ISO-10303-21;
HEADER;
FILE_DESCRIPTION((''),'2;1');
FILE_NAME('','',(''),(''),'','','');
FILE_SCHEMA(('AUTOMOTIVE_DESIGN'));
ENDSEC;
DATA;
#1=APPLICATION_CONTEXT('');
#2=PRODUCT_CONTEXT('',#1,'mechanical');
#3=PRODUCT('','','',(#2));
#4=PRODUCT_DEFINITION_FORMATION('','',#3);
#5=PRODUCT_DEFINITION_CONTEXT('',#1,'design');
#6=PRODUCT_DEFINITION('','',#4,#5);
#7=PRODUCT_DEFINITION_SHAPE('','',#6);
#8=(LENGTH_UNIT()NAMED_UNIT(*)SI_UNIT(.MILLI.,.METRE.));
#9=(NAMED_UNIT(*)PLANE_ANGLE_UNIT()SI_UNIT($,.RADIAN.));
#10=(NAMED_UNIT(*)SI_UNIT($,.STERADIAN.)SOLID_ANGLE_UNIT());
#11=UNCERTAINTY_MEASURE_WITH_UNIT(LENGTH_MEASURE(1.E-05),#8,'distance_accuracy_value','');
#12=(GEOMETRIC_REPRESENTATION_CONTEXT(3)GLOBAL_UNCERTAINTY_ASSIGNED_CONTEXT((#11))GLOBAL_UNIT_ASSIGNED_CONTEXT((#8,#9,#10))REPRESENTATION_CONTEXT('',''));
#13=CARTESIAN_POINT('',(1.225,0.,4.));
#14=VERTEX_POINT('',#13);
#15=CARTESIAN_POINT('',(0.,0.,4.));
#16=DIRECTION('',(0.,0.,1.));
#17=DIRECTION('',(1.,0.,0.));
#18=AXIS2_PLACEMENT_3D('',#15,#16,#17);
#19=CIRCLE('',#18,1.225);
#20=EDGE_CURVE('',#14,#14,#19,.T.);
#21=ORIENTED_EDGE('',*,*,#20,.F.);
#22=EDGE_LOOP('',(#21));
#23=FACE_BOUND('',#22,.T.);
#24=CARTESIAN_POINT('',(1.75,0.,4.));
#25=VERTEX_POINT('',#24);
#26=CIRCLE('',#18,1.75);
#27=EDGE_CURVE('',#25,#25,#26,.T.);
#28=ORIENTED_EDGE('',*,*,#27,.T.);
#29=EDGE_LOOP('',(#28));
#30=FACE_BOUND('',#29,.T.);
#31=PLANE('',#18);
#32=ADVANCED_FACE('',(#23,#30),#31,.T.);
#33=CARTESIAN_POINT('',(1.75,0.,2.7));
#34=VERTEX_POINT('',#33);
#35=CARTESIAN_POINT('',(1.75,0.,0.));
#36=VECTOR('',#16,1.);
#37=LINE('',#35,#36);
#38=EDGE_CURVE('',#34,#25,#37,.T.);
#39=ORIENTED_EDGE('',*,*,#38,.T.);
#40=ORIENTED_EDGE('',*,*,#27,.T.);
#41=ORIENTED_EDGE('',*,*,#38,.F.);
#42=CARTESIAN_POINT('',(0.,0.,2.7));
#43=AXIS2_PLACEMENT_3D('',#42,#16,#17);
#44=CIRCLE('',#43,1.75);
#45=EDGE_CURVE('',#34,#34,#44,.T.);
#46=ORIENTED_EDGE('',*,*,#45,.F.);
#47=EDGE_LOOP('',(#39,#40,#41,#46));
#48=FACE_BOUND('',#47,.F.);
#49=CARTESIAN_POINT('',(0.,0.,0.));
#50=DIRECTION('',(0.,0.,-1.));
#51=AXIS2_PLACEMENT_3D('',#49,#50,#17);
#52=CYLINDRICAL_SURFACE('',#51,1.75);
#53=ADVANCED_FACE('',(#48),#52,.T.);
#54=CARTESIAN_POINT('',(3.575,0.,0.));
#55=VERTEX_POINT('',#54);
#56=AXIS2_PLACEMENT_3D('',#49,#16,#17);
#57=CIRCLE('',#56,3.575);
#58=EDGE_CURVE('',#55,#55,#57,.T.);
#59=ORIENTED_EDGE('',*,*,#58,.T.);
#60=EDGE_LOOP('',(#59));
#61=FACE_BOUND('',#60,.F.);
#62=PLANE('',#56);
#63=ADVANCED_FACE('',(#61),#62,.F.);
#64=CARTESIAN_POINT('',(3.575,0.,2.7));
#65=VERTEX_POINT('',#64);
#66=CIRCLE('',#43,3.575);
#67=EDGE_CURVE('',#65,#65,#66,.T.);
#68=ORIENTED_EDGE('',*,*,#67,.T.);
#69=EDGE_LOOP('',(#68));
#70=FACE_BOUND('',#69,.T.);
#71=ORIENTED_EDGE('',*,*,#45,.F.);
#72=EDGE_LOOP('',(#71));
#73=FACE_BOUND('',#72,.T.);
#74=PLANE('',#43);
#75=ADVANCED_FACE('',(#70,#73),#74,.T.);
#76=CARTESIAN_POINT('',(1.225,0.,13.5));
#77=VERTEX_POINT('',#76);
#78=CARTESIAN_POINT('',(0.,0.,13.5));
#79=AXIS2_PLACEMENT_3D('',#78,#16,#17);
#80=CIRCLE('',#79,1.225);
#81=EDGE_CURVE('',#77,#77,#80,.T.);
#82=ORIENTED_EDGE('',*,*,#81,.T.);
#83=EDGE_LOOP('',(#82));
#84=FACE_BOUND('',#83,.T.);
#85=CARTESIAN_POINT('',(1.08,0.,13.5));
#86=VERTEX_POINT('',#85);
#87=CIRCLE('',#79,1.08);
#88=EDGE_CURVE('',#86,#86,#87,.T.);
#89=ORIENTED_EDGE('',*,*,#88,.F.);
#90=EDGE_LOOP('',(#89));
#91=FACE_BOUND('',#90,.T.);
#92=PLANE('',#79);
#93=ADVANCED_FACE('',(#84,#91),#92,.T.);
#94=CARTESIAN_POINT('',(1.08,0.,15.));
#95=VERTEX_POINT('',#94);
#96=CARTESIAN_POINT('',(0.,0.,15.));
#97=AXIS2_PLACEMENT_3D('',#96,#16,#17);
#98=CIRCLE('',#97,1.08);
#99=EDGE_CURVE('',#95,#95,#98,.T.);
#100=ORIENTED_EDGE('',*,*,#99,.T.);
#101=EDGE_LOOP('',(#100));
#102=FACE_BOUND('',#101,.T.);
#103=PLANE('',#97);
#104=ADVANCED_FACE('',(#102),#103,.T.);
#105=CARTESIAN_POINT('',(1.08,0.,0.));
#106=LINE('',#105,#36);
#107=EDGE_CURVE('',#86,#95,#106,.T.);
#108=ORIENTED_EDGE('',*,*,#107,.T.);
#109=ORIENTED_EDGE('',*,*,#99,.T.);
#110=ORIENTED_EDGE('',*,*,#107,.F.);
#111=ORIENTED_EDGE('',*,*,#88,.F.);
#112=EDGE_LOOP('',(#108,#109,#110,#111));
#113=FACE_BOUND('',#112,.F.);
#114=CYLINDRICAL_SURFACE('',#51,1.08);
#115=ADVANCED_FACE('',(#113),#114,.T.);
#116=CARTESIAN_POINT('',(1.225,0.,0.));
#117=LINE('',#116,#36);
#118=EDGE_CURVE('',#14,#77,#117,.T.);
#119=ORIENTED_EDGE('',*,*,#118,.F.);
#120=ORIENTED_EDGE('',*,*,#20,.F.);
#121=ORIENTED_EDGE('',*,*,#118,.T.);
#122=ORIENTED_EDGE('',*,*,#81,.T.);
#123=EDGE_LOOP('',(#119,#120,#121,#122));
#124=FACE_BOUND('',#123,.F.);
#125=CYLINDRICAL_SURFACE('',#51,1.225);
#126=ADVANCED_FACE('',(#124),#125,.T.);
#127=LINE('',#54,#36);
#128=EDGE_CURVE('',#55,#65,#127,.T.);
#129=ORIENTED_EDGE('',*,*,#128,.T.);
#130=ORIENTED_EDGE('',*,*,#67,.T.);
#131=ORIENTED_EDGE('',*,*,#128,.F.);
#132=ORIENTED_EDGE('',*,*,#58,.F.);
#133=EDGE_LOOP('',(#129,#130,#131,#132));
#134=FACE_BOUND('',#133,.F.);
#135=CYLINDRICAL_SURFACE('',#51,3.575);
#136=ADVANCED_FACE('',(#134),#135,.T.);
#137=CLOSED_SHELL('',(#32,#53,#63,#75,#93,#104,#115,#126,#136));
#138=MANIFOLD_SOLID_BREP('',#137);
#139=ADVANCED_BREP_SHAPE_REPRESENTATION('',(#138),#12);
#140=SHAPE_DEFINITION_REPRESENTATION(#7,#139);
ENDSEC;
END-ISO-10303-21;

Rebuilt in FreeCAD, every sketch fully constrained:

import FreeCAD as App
import Part
import Sketcher

V = App.Vector
Q = App.Units.Quantity

doc = App.newDocument("Part")
params = doc.addObject("Spreadsheet::Sheet", "Params")
for row, (alias, value) in enumerate([
    ("sketch1_diameter", "2.16 mm"),
    ("pad1_length", "15 mm"),
    ("sketch2_diameter", "2.45 mm"),
    ("sketch2_diameter2", "2.16 mm"),
    ("pad2_length", "13.5 mm"),
    ("sketch3_diameter", "3.5 mm"),
    ("sketch3_diameter2", "2.45 mm"),
    ("pad3_length", "4 mm"),
    ("sketch4_diameter", "3.5 mm"),
    ("sketch4_diameter2", "7.15 mm"),
    ("pad4_length", "2.7 mm"),
], start=1):
    params.set(f"A{row}", alias)
    params.set(f"B{row}", "=" + value)
    params.setAlias(f"B{row}", alias)

body = doc.addObject("PartDesign::Body", "Body")

sketch1 = body.newObject("Sketcher::SketchObject", "Sketch")
sketch1.AttachmentSupport = (doc.getObject("XY_Plane"), [""])
sketch1.MapMode = "FlatFace"
sketch1.addGeometry(Part.Circle(V(0, 0, 0), V(0, 0, 1), 1.1), False)
sketch1.addConstraint([
    Sketcher.Constraint("Coincident", 0, 3, -1, 1),
    Sketcher.Constraint("Diameter", 0, Q("2.16 mm")),
])
sketch1.setExpression("Constraints[1]", "Params.sketch1_diameter")
pad1 = body.newObject("PartDesign::Pad", "Pad")
pad1.Profile = sketch1
pad1.setExpression("Length", "Params.pad1_length")

sketch2 = body.newObject("Sketcher::SketchObject", "Sketch001")
sketch2.AttachmentSupport = (doc.getObject("XY_Plane"), [""])
sketch2.MapMode = "FlatFace"
sketch2.addGeometry([
    Part.Circle(V(0, 0, 0), V(0, 0, 1), 1.2),
    Part.Circle(V(0, 0, 0), V(0, 0, 1), 1.1),
], False)
sketch2.addConstraint([
    Sketcher.Constraint("Coincident", 0, 3, -1, 1),
    Sketcher.Constraint("Coincident", 1, 3, -1, 1),
    Sketcher.Constraint("Diameter", 0, Q("2.45 mm")),
    Sketcher.Constraint("Diameter", 1, Q("2.16 mm")),
])
sketch2.setExpression("Constraints[2]", "Params.sketch2_diameter")
sketch2.setExpression("Constraints[3]", "Params.sketch2_diameter2")
pad2 = body.newObject("PartDesign::Pad", "Pad001")
pad2.Profile = sketch2
pad2.setExpression("Length", "Params.pad2_length")

sketch3 = body.newObject("Sketcher::SketchObject", "Sketch002")
sketch3.AttachmentSupport = (doc.getObject("XY_Plane"), [""])
sketch3.MapMode = "FlatFace"
sketch3.addGeometry([
    Part.Circle(V(0, 0, 0), V(0, 0, 1), 1.8),
    Part.Circle(V(0, 0, 0), V(0, 0, 1), 1.2),
], False)
sketch3.addConstraint([
    Sketcher.Constraint("Coincident", 0, 3, -1, 1),
    Sketcher.Constraint("Coincident", 1, 3, -1, 1),
    Sketcher.Constraint("Diameter", 0, Q("3.5 mm")),
    Sketcher.Constraint("Diameter", 1, Q("2.45 mm")),
])
sketch3.setExpression("Constraints[2]", "Params.sketch3_diameter")
sketch3.setExpression("Constraints[3]", "Params.sketch3_diameter2")
pad3 = body.newObject("PartDesign::Pad", "Pad002")
pad3.Profile = sketch3
pad3.setExpression("Length", "Params.pad3_length")

sketch4 = body.newObject("Sketcher::SketchObject", "Sketch003")
sketch4.AttachmentSupport = (doc.getObject("XY_Plane"), [""])
sketch4.MapMode = "FlatFace"
sketch4.addGeometry([
    Part.Circle(V(0, 0, 0), V(0, 0, 1), 3.6),
    Part.Circle(V(0, 0, 0), V(0, 0, 1), 1.8),
], False)
sketch4.addConstraint([
    Sketcher.Constraint("Coincident", 0, 3, -1, 1),
    Sketcher.Constraint("Coincident", 1, 3, -1, 1),
    Sketcher.Constraint("Diameter", 1, Q("3.5 mm")),
    Sketcher.Constraint("Diameter", 0, Q("7.15 mm")),
])
sketch4.setExpression("Constraints[2]", "Params.sketch4_diameter")
sketch4.setExpression("Constraints[3]", "Params.sketch4_diameter2")
pad4 = body.newObject("PartDesign::Pad", "Pad003")
pad4.Profile = sketch4
pad4.setExpression("Length", "Params.pad4_length")

doc.recompute()
